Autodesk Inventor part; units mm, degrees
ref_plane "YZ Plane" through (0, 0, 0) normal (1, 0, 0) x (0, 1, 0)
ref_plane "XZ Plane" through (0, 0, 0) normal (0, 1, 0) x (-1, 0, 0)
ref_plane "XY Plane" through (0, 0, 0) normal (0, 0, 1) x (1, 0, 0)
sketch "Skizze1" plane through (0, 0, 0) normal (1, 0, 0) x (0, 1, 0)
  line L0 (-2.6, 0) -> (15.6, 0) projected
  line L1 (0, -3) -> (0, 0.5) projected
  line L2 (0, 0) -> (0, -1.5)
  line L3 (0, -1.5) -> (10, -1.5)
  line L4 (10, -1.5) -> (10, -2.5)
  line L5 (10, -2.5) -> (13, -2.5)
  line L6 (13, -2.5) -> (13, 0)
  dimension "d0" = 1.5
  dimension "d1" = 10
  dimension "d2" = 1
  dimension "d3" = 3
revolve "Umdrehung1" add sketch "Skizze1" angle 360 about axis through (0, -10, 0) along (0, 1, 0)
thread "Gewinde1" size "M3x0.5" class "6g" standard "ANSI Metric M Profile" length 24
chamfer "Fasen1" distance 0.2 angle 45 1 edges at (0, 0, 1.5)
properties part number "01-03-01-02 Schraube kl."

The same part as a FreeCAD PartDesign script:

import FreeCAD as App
import Part
import Sketcher
from FreeCAD import Vector


def edges_at(feature, points):
    """Names of the edges that pass closest to the given points."""
    edges = feature.Shape.Edges
    near = lambda p: min(range(len(edges)), key=lambda i: edges[i].distToShape(Part.Vertex(*p))[0])
    return sorted({f"Edge{near(p) + 1}" for p in points})

doc = App.newDocument("Part")
params = doc.addObject("Spreadsheet::Sheet", "Params")
for row, (alias, value) in enumerate([
    ("sketch1_width", "10 mm"),
    ("sketch1_width2", "3 mm"),
    ("sketch1_height", "1 mm"),
    ("sketch1_height2", "1.5 mm"),
    ("revolution_angle", "360 deg"),
    ("chamfer_size", "0.2 mm"),
], start=1):
    params.set(f"A{row}", alias)
    params.set(f"B{row}", "=" + value)
    params.setAlias(f"B{row}", alias)

body = doc.addObject("PartDesign::Body", "Body")

# Sketch on YZ plane
sketch1 = body.newObject("Sketcher::SketchObject", "Sketch")
sketch1.AttachmentSupport = (doc.getObject("YZ_Plane"), [""])
sketch1.MapMode = "FlatFace"
sketch1.addGeometry([
    Part.LineSegment(Vector(13, 0, 0), Vector(0, 0, 0)),  # 0
    Part.LineSegment(Vector(0, 0, 0), Vector(0, -1.5, 0)),  # 1
    Part.LineSegment(Vector(0, -1.5, 0), Vector(10, -1.5, 0)),  # 2
    Part.LineSegment(Vector(10, -1.5, 0), Vector(10, -2.5, 0)),  # 3
    Part.LineSegment(Vector(10, -2.5, 0), Vector(13, -2.5, 0)),  # 4
    Part.LineSegment(Vector(13, -2.5, 0), Vector(13, 0, 0)),  # 5
], False)
sketch1.addConstraint([
    Sketcher.Constraint("Coincident", 0, 2, 1, 1),
    Sketcher.Constraint("Coincident", 1, 2, 2, 1),
    Sketcher.Constraint("Coincident", 2, 2, 3, 1),
    Sketcher.Constraint("Coincident", 3, 2, 4, 1),
    Sketcher.Constraint("Coincident", 4, 2, 5, 1),
    Sketcher.Constraint("Coincident", 5, 2, 0, 1),
    Sketcher.Constraint("Horizontal", 0),
    Sketcher.Constraint("Vertical", 1),
    Sketcher.Constraint("Horizontal", 2),
    Sketcher.Constraint("Vertical", 3),
    Sketcher.Constraint("Horizontal", 4),
    Sketcher.Constraint("Vertical", 5),
    Sketcher.Constraint("Coincident", 0, 2, -1, 1),
    Sketcher.Constraint("DistanceX", 2, 1, 2, 2, 10.0),
    Sketcher.Constraint("DistanceX", 4, 1, 4, 2, 3.0),
    Sketcher.Constraint("DistanceY", 3, 2, 3, 1, 1.0),
    Sketcher.Constraint("DistanceY", 1, 2, 1, 1, 1.5),
])
sketch1.setExpression("Constraints[13]", "Params.sketch1_width")
sketch1.setExpression("Constraints[14]", "Params.sketch1_width2")
sketch1.setExpression("Constraints[15]", "Params.sketch1_height")
sketch1.setExpression("Constraints[16]", "Params.sketch1_height2")
revolution = body.newObject("PartDesign::Revolution", "Revolution")
revolution.Profile = sketch1
revolution.ReferenceAxis = (sketch1, ["H_Axis"])
revolution.setExpression("Angle", "Params.revolution_angle")
doc.recompute()

chamfer = body.newObject("PartDesign::Chamfer", "Chamfer")
chamfer.Base = (revolution, edges_at(revolution, [(0, 0, 1.5)]))
chamfer.setExpression("Size", "Params.chamfer_size")

doc.recompute()
